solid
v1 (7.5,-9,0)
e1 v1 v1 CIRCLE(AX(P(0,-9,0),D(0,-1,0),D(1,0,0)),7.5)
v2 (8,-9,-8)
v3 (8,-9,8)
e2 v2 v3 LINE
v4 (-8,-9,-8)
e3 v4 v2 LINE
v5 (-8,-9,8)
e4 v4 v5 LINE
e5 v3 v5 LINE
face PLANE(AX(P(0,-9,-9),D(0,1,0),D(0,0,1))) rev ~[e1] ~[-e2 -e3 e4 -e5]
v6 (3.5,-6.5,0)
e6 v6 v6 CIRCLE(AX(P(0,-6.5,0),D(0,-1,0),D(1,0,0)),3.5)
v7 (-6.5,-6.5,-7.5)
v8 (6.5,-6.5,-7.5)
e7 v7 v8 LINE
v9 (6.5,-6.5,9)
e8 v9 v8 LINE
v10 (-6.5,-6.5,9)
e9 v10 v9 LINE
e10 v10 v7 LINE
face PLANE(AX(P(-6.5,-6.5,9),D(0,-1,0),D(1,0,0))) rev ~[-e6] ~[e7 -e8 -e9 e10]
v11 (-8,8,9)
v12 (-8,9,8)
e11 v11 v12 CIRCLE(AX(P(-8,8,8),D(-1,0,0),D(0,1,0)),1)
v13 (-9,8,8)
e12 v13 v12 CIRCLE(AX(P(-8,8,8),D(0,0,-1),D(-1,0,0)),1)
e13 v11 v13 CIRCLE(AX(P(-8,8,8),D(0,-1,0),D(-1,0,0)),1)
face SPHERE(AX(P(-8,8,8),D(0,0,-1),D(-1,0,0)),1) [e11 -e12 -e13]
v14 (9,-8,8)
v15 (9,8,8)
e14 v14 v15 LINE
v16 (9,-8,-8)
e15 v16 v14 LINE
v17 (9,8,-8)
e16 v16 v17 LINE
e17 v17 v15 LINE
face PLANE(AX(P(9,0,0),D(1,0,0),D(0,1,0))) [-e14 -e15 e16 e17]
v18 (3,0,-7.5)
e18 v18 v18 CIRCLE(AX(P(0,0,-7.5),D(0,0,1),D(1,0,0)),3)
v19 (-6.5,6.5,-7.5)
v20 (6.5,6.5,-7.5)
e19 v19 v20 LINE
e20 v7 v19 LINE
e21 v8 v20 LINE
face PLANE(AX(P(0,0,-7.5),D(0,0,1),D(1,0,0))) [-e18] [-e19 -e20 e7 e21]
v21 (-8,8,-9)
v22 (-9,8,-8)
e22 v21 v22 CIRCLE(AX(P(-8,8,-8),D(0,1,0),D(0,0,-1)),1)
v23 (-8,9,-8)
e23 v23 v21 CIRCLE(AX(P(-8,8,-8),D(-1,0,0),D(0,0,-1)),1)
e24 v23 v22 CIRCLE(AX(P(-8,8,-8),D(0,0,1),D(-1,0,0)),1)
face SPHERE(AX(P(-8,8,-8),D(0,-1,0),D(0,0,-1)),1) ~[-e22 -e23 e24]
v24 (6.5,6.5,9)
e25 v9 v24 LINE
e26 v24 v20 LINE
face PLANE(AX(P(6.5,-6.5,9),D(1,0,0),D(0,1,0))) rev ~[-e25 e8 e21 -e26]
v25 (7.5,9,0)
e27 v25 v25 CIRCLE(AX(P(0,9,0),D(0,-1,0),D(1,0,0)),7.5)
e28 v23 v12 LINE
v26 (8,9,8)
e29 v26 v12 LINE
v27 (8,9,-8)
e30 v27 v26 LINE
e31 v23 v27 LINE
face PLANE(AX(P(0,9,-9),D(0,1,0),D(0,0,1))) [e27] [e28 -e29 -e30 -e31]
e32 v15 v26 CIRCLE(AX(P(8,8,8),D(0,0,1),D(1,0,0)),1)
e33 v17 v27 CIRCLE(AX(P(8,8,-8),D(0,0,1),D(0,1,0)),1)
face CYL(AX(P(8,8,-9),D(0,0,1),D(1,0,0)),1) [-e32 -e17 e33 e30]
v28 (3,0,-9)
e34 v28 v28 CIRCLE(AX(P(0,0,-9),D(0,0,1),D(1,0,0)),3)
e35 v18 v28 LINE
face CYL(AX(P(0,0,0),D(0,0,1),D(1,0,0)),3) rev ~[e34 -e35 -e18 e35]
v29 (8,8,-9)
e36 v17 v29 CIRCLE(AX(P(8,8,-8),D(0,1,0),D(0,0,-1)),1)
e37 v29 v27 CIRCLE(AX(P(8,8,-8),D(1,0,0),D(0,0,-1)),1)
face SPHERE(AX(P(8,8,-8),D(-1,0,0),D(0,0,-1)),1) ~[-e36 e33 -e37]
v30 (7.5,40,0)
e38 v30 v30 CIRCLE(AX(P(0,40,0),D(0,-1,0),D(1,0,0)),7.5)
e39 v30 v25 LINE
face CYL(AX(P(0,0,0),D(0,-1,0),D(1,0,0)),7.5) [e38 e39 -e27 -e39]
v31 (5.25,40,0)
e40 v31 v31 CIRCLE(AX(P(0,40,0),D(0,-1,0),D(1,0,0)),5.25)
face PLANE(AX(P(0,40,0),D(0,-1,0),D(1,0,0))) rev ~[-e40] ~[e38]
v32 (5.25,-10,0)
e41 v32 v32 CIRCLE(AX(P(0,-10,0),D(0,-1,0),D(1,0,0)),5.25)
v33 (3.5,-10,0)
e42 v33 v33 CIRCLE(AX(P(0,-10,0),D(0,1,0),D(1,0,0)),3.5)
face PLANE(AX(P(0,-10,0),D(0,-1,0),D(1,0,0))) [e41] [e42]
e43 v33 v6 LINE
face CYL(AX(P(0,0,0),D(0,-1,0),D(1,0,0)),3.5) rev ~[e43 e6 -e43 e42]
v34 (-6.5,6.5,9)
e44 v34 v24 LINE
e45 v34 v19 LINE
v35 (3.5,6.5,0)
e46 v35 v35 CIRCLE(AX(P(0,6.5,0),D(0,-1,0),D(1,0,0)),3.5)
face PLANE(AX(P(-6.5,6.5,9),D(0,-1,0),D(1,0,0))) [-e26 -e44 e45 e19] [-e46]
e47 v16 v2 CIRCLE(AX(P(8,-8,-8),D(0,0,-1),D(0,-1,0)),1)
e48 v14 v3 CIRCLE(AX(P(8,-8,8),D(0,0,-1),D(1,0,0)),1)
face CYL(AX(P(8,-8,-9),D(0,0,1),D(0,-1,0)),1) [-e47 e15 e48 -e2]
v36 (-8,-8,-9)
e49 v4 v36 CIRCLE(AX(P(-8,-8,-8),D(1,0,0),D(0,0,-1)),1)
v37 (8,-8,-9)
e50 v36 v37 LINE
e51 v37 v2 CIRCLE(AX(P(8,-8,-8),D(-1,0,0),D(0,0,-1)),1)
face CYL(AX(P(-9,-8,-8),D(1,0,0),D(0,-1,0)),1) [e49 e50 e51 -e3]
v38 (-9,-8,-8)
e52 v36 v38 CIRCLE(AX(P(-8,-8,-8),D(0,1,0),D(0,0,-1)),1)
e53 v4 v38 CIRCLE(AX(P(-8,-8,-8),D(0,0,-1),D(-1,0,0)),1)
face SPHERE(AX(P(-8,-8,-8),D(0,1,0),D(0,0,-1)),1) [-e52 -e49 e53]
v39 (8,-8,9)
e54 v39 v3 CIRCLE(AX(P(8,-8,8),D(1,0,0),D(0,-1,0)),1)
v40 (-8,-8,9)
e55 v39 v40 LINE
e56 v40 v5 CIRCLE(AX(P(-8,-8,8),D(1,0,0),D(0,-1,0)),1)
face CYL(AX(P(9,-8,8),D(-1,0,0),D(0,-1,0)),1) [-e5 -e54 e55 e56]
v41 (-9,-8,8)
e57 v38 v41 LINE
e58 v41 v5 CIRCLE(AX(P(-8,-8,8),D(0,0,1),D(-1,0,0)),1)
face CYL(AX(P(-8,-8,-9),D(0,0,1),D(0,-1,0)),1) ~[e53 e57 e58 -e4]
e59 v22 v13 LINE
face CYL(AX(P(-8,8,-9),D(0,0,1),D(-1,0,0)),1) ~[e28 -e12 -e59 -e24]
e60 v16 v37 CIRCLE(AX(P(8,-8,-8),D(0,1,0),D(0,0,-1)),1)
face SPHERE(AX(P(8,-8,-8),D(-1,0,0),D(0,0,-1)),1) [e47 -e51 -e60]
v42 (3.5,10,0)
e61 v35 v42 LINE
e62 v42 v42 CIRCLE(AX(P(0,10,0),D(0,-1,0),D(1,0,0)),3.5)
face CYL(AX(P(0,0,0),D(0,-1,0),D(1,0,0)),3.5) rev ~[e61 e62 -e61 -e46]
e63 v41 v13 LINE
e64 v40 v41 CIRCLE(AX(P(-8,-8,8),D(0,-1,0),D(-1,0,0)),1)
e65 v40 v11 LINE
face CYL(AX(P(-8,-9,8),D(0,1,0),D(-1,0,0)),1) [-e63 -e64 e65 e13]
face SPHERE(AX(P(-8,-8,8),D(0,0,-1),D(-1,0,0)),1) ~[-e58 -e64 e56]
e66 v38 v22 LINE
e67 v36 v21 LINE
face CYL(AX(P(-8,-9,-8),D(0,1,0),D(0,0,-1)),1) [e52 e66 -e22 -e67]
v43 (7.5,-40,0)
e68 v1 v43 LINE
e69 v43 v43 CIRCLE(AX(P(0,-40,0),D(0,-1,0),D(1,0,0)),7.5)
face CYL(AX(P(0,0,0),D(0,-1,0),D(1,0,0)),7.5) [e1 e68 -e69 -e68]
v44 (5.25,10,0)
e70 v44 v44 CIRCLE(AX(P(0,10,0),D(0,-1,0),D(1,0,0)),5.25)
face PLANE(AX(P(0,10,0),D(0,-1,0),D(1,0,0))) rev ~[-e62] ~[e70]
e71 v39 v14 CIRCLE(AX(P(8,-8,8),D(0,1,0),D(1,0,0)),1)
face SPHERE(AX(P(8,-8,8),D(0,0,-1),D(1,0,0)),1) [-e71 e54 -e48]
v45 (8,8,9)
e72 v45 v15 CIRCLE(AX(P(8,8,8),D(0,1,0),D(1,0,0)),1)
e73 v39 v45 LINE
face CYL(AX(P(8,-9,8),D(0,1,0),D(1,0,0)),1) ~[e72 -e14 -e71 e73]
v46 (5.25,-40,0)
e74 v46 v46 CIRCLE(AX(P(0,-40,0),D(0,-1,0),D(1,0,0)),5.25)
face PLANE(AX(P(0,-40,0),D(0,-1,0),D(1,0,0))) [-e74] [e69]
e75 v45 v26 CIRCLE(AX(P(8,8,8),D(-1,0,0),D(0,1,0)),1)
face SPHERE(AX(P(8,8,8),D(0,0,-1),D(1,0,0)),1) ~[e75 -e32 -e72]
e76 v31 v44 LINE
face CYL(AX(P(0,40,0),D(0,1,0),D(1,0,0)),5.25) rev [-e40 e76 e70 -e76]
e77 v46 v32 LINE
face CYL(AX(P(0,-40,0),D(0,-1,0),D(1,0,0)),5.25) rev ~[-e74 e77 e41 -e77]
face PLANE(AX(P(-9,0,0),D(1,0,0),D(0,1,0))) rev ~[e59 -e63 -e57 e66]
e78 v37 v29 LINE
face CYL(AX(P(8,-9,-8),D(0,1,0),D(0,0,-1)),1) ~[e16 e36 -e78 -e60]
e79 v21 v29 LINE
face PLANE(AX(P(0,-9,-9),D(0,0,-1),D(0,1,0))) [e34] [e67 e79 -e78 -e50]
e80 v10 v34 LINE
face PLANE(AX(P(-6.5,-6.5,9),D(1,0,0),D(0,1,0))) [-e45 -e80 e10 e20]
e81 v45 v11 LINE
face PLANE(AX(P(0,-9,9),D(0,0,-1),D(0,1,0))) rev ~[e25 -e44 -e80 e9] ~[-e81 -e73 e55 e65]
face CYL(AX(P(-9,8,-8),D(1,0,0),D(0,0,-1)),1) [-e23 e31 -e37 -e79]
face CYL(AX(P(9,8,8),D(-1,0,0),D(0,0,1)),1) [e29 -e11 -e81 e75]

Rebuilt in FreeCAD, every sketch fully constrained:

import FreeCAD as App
import Part
import Sketcher
from FreeCAD import Vector


def edges_at(feature, points):
    """Names of the edges that pass closest to the given points."""
    edges = feature.Shape.Edges
    near = lambda p: min(range(len(edges)), key=lambda i: edges[i].distToShape(Part.Vertex(*p))[0])
    return sorted({f"Edge{near(p) + 1}" for p in points})

doc = App.newDocument("Part")
body = doc.addObject("PartDesign::Body", "Body")

# Sketch on XZ plane
sketch1 = body.newObject("Sketcher::SketchObject", "Sketch")
sketch1.AttachmentSupport = (doc.getObject("XZ_Plane"), [""])
sketch1.MapMode = "FlatFace"
sketch1.addGeometry(Part.Circle(Vector(0, 0, 0), Vector(0, 0, 1), 7.5), False)
sketch1.addConstraint([
    Sketcher.Constraint("Coincident", 0, 3, -1, 1),
    Sketcher.Constraint("Diameter", 0, 15.0),
])
pad1 = body.newObject("PartDesign::Pad", "Pad")
pad1.Profile = sketch1
pad1.Length = 80
pad1.Midplane = True

# Sketch on XZ plane
sketch2 = body.newObject("Sketcher::SketchObject", "Sketch001")
sketch2.AttachmentSupport = (doc.getObject("XZ_Plane"), [""])
sketch2.MapMode = "FlatFace"
sketch2.AttachmentOffset = App.Placement(Vector(0, 0, 40), App.Rotation())
sketch2.addGeometry(Part.Circle(Vector(0, 0, 0), Vector(0, 0, 1), 5.25), False)
sketch2.addConstraint([
    Sketcher.Constraint("Coincident", 0, 3, -1, 1),
    Sketcher.Constraint("Diameter", 0, 10.5),
])
pocket1 = body.newObject("PartDesign::Pocket", "Pocket")
pocket1.Profile = sketch2
pocket1.Length = 30

# Sketch on XZ plane
sketch3 = body.newObject("Sketcher::SketchObject", "Sketch002")
sketch3.AttachmentSupport = (doc.getObject("XZ_Plane"), [""])
sketch3.MapMode = "FlatFace"
sketch3.AttachmentOffset = App.Placement(Vector(0, 0, -40), App.Rotation())
sketch3.addGeometry(Part.Circle(Vector(0, 0, 0), Vector(0, 0, 1), 5.25), False)
sketch3.addConstraint([
    Sketcher.Constraint("Coincident", 0, 3, -1, 1),
    Sketcher.Constraint("Diameter", 0, 10.5),
])
pocket2 = body.newObject("PartDesign::Pocket", "Pocket001")
pocket2.Profile = sketch3
pocket2.Length = 30
pocket2.Reversed = True

# Sketch on YZ plane
sketch4 = body.newObject("Sketcher::SketchObject", "Sketch003")
sketch4.AttachmentSupport = (doc.getObject("YZ_Plane"), [""])
sketch4.MapMode = "FlatFace"
sketch4.addGeometry([
    Part.LineSegment(Vector(-9, 9, 0), Vector(-9, -9, 0)),
    Part.LineSegment(Vector(-9, -9, 0), Vector(9, -9, 0)),
    Part.LineSegment(Vector(9, -9, 0), Vector(9, 9, 0)),
    Part.LineSegment(Vector(9, 9, 0), Vector(-9, 9, 0)),
], False)
sketch4.addConstraint([
    Sketcher.Constraint("Coincident", 0, 2, 1, 1),
    Sketcher.Constraint("Coincident", 1, 2, 2, 1),
    Sketcher.Constraint("Coincident", 2, 2, 3, 1),
    Sketcher.Constraint("Coincident", 3, 2, 0, 1),
    Sketcher.Constraint("Vertical", 0),
    Sketcher.Constraint("Horizontal", 1),
    Sketcher.Constraint("Vertical", 2),
    Sketcher.Constraint("Horizontal", 3),
    Sketcher.Constraint("Symmetric", 0, 2, 2, 2, -1, 1),
    Sketcher.Constraint("Equal", 3, 0),
    Sketcher.Constraint("DistanceX", 1, 1, 1, 2, 18.0),
])
pad2 = body.newObject("PartDesign::Pad", "Pad001")
pad2.Profile = sketch4
pad2.Length = 18
pad2.Midplane = True

# Sketch on XZ plane
sketch5 = body.newObject("Sketcher::SketchObject", "Sketch004")
sketch5.AttachmentSupport = (doc.getObject("XZ_Plane"), [""])
sketch5.MapMode = "FlatFace"
sketch5.addGeometry(Part.Circle(Vector(0, 0, 0), Vector(0, 0, 1), 3.5), False)
sketch5.addConstraint([
    Sketcher.Constraint("Coincident", 0, 3, -1, 1),
    Sketcher.Constraint("Diameter", 0, 7.0),
])
pocket3 = body.newObject("PartDesign::Pocket", "Pocket002")
pocket3.Profile = sketch5
pocket3.Type = "ThroughAll"
pocket3.Midplane = True

# Sketch on XY plane
sketch6 = body.newObject("Sketcher::SketchObject", "Sketch005")
sketch6.AttachmentSupport = (doc.getObject("XY_Plane"), [""])
sketch6.MapMode = "FlatFace"
sketch6.addGeometry(Part.Circle(Vector(0, 0, 0), Vector(0, 0, 1), 3), False)
sketch6.addConstraint([
    Sketcher.Constraint("Coincident", 0, 3, -1, 1),
    Sketcher.Constraint("Diameter", 0, 6.0),
])
pocket4 = body.newObject("PartDesign::Pocket", "Pocket003")
pocket4.Profile = sketch6
pocket4.Type = "ThroughAll"
pocket4.Midplane = True

# Sketch on XY plane
sketch7 = body.newObject("Sketcher::SketchObject", "Sketch006")
sketch7.AttachmentSupport = (doc.getObject("XY_Plane"), [""])
sketch7.MapMode = "FlatFace"
sketch7.AttachmentOffset = App.Placement(Vector(0, 0, 9), App.Rotation())
sketch7.addGeometry([
    Part.LineSegment(Vector(-6.5, 6.5, 0), Vector(-6.5, -6.5, 0)),
    Part.LineSegment(Vector(-6.5, -6.5, 0), Vector(6.5, -6.5, 0)),
    Part.LineSegment(Vector(6.5, -6.5, 0), Vector(6.5, 6.5, 0)),
    Part.LineSegment(Vector(6.5, 6.5, 0), Vector(-6.5, 6.5, 0)),
], False)
sketch7.addConstraint([
    Sketcher.Constraint("Coincident", 0, 2, 1, 1),
    Sketcher.Constraint("Coincident", 1, 2, 2, 1),
    Sketcher.Constraint("Coincident", 2, 2, 3, 1),
    Sketcher.Constraint("Coincident", 3, 2, 0, 1),
    Sketcher.Constraint("Vertical", 0),
    Sketcher.Constraint("Horizontal", 1),
    Sketcher.Constraint("Vertical", 2),
    Sketcher.Constraint("Horizontal", 3),
    Sketcher.Constraint("Symmetric", 0, 2, 2, 2, -1, 1),
    Sketcher.Constraint("Equal", 3, 0),
    Sketcher.Constraint("DistanceX", 1, 1, 1, 2, 13.0),
])
pocket5 = body.newObject("PartDesign::Pocket", "Pocket004")
pocket5.Profile = sketch7
pocket5.Length = 16.5
doc.recompute()

fillet = body.newObject("PartDesign::Fillet", "Fillet")
fillet.Base = (pocket5, edges_at(pocket5, [
    (-9, 0, -9),
    (0, -9, -9),
    (0, 9, -9),
    (9, 0, -9),
    (9, 9, 0),
    (9, -9, 0),
    (9, 0, 9),
    (-9, 9, 0),
    (-9, -9, 0),
    (-9, 0, 9),
    (0, 9, 9),
    (0, -9, 9),
]))
fillet.Radius = 1

doc.recompute()
